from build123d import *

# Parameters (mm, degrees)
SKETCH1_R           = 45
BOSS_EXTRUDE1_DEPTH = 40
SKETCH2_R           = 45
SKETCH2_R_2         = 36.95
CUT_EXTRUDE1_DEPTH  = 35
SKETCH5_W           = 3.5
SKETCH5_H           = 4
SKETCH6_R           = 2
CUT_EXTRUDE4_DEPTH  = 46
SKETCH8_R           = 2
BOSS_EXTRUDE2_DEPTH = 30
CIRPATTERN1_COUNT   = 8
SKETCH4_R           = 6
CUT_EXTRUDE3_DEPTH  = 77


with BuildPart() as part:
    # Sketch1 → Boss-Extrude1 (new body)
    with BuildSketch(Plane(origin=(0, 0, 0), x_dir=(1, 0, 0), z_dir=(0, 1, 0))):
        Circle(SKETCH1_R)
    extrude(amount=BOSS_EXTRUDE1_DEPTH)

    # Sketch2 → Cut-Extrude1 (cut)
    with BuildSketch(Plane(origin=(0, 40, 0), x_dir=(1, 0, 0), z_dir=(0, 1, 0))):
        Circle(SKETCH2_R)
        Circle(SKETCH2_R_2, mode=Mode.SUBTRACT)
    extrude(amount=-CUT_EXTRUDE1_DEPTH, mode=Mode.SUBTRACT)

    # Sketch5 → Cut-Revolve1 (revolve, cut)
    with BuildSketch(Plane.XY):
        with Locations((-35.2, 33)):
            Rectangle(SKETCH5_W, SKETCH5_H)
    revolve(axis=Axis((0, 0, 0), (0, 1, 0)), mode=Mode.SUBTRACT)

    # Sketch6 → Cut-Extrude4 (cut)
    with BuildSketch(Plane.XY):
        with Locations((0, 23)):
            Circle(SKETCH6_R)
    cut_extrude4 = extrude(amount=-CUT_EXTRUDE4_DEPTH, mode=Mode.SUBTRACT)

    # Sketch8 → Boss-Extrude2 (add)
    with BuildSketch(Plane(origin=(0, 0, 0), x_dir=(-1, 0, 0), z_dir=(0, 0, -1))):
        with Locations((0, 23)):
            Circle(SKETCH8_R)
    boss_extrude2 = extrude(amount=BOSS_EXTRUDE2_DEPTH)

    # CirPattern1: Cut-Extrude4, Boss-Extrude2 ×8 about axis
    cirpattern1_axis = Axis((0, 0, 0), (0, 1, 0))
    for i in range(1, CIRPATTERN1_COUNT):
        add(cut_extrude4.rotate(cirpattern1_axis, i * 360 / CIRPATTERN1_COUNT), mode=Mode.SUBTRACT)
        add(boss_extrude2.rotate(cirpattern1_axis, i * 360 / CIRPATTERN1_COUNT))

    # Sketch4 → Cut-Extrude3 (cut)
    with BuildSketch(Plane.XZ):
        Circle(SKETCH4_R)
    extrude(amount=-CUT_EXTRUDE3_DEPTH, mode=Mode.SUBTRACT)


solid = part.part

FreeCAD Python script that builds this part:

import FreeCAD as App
import Part
import Sketcher


def add_polygon(sketch, points):
    """Adds a closed chain of lines whose ends are joined by coincident constraints."""
    first, n = sketch.GeometryCount, len(points)
    for a, b in zip(points, points[1:] + points[:1]):
        sketch.addGeometry(Part.LineSegment(App.Vector(*a, 0), App.Vector(*b, 0)), False)
    for i in range(n):
        sketch.addConstraint(Sketcher.Constraint("Coincident", first + i, 2, first + (i + 1) % n, 1))

doc = App.newDocument("Part")
params = doc.addObject("Spreadsheet::Sheet", "Params")
for row, (alias, value) in enumerate([
    ("sketch1_diameter", "90 mm"),
    ("pad1_length", "40 mm"),
    ("sketch2_diameter", "90 mm"),
    ("sketch2_diameter2", "73.9 mm"),
    ("pocket1_length", "35 mm"),
    ("sketch3_height", "4 mm"),
    ("sketch3_width", "3.5 mm"),
    ("groove_angle", "360 deg"),
    ("sketch4_diameter", "4 mm"),
    ("pocket2_length", "46 mm"),
    ("sketch5_diameter", "4 mm"),
    ("pad2_length", "30 mm"),
    ("sketch6_diameter", "12 mm"),
    ("pocket3_length", "77 mm"),
], start=1):
    params.set(f"A{row}", alias)
    params.set(f"B{row}", "=" + value)
    params.setAlias(f"B{row}", alias)

body = doc.addObject("PartDesign::Body", "Body")

# Sketch on XZ plane
sketch1 = doc.addObject("Sketcher::SketchObject", "Sketch")
body.addObject(sketch1)
sketch1.AttachmentSupport = (doc.XZ_Plane, [""])
sketch1.MapMode = "FlatFace"
sketch1.addGeometry(Part.Circle(App.Vector(0, 0, 0), App.Vector(0, 0, 1), 45), False)
sketch1.addConstraint([
    Sketcher.Constraint("Coincident", 0, 3, -1, 1),
    Sketcher.Constraint("Diameter", 0, 90.0),
])
sketch1.setExpression("Constraints[1]", "Params.sketch1_diameter")
pad1 = doc.addObject("PartDesign::Pad", "Pad")
body.addObject(pad1)
pad1.Profile = sketch1
pad1.setExpression("Length", "Params.pad1_length")
pad1.Reversed = True

# Sketch on XZ plane
sketch2 = doc.addObject("Sketcher::SketchObject", "Sketch001")
body.addObject(sketch2)
sketch2.AttachmentSupport = (doc.XZ_Plane, [""])
sketch2.MapMode = "FlatFace"
sketch2.AttachmentOffset = App.Placement(App.Vector(0, 0, -40), App.Rotation())
sketch2.addGeometry([
    Part.Circle(App.Vector(0, 0, 0), App.Vector(0, 0, 1), 45),
    Part.Circle(App.Vector(0, 0, 0), App.Vector(0, 0, 1), 36.95),
], False)
sketch2.addConstraint([
    Sketcher.Constraint("Coincident", 0, 3, -1, 1),
    Sketcher.Constraint("Coincident", 1, 3, -1, 1),
    Sketcher.Constraint("Diameter", 0, 90.0),
    Sketcher.Constraint("Diameter", 1, 73.9),
])
sketch2.setExpression("Constraints[2]", "Params.sketch2_diameter")
sketch2.setExpression("Constraints[3]", "Params.sketch2_diameter2")
pocket1 = doc.addObject("PartDesign::Pocket", "Pocket")
body.addObject(pocket1)
pocket1.Profile = sketch2
pocket1.setExpression("Length", "Params.pocket1_length")
pocket1.Reversed = True

# Sketch on XY plane
sketch3 = doc.addObject("Sketcher::SketchObject", "Sketch002")
body.addObject(sketch3)
sketch3.AttachmentSupport = (doc.XY_Plane, [""])
sketch3.MapMode = "FlatFace"
add_polygon(sketch3, [(-36.95, 35), (-36.95, 31), (-33.45, 31), (-33.45, 35)])  # lines 0-3
sketch3.addConstraint([
    Sketcher.Constraint("Vertical", 0),
    Sketcher.Constraint("Horizontal", 1),
    Sketcher.Constraint("Vertical", 2),
    Sketcher.Constraint("Horizontal", 3),
    Sketcher.Constraint("DistanceY", 0, 2, 0, 1, 4.0),
    Sketcher.Constraint("DistanceX", 1, 1, 1, 2, 3.5),
    Sketcher.Constraint("DistanceY", -1, 1, 0, 2, 31.0),
    Sketcher.Constraint("DistanceX", 0, 2, -1, 1, 36.95),
])
sketch3.setExpression("Constraints[8]", "Params.sketch3_height")
sketch3.setExpression("Constraints[9]", "Params.sketch3_width")
groove = doc.addObject("PartDesign::Groove", "Groove")
body.addObject(groove)
groove.Profile = sketch3
groove.ReferenceAxis = (sketch3, ["V_Axis"])
groove.setExpression("Angle", "Params.groove_angle")

# Sketch on XY plane
sketch4 = doc.addObject("Sketcher::SketchObject", "Sketch003")
body.addObject(sketch4)
sketch4.AttachmentSupport = (doc.XY_Plane, [""])
sketch4.MapMode = "FlatFace"
sketch4.addGeometry(Part.Circle(App.Vector(0, 23, 0), App.Vector(0, 0, 1), 2), False)
sketch4.addConstraint([
    Sketcher.Constraint("PointOnObject", 0, 3, -2),
    Sketcher.Constraint("Diameter", 0, 4.0),
    Sketcher.Constraint("DistanceY", -1, 1, 0, 3, 23.0),
])
sketch4.setExpression("Constraints[1]", "Params.sketch4_diameter")
pocket2 = doc.addObject("PartDesign::Pocket", "Pocket001")
body.addObject(pocket2)
pocket2.Profile = sketch4
pocket2.setExpression("Length", "Params.pocket2_length")

# Sketch on XY plane
sketch5 = doc.addObject("Sketcher::SketchObject", "Sketch004")
body.addObject(sketch5)
sketch5.AttachmentSupport = (doc.XY_Plane, [""])
sketch5.MapMode = "FlatFace"
sketch5.addGeometry(Part.Circle(App.Vector(0, 23, 0), App.Vector(0, 0, 1), 2), False)
sketch5.addConstraint([
    Sketcher.Constraint("PointOnObject", 0, 3, -2),
    Sketcher.Constraint("Diameter", 0, 4.0),
    Sketcher.Constraint("DistanceY", -1, 1, 0, 3, 23.0),
])
sketch5.setExpression("Constraints[1]", "Params.sketch5_diameter")
pad2 = doc.addObject("PartDesign::Pad", "Pad001")
body.addObject(pad2)
pad2.Profile = sketch5
pad2.setExpression("Length", "Params.pad2_length")
pad2.Reversed = True
doc.recompute()

polarpattern = doc.addObject("PartDesign::PolarPattern", "PolarPattern")
body.addObject(polarpattern)
polarpattern.Originals = [pocket2, pad2]
polarpattern.Axis = (doc.Y_Axis, [""])
polarpattern.Angle = 360
polarpattern.Occurrences = 8
body.Tip = polarpattern

# Sketch on XZ plane
sketch6 = doc.addObject("Sketcher::SketchObject", "Sketch005")
body.addObject(sketch6)
sketch6.AttachmentSupport = (doc.XZ_Plane, [""])
sketch6.MapMode = "FlatFace"
sketch6.addGeometry(Part.Circle(App.Vector(0, 0, 0), App.Vector(0, 0, 1), 6), False)
sketch6.addConstraint([
    Sketcher.Constraint("Coincident", 0, 3, -1, 1),
    Sketcher.Constraint("Diameter", 0, 12.0),
])
sketch6.setExpression("Constraints[1]", "Params.sketch6_diameter")
pocket3 = doc.addObject("PartDesign::Pocket", "Pocket002")
body.addObject(pocket3)
pocket3.Profile = sketch6
pocket3.setExpression("Length", "Params.pocket3_length")

doc.recompute()
